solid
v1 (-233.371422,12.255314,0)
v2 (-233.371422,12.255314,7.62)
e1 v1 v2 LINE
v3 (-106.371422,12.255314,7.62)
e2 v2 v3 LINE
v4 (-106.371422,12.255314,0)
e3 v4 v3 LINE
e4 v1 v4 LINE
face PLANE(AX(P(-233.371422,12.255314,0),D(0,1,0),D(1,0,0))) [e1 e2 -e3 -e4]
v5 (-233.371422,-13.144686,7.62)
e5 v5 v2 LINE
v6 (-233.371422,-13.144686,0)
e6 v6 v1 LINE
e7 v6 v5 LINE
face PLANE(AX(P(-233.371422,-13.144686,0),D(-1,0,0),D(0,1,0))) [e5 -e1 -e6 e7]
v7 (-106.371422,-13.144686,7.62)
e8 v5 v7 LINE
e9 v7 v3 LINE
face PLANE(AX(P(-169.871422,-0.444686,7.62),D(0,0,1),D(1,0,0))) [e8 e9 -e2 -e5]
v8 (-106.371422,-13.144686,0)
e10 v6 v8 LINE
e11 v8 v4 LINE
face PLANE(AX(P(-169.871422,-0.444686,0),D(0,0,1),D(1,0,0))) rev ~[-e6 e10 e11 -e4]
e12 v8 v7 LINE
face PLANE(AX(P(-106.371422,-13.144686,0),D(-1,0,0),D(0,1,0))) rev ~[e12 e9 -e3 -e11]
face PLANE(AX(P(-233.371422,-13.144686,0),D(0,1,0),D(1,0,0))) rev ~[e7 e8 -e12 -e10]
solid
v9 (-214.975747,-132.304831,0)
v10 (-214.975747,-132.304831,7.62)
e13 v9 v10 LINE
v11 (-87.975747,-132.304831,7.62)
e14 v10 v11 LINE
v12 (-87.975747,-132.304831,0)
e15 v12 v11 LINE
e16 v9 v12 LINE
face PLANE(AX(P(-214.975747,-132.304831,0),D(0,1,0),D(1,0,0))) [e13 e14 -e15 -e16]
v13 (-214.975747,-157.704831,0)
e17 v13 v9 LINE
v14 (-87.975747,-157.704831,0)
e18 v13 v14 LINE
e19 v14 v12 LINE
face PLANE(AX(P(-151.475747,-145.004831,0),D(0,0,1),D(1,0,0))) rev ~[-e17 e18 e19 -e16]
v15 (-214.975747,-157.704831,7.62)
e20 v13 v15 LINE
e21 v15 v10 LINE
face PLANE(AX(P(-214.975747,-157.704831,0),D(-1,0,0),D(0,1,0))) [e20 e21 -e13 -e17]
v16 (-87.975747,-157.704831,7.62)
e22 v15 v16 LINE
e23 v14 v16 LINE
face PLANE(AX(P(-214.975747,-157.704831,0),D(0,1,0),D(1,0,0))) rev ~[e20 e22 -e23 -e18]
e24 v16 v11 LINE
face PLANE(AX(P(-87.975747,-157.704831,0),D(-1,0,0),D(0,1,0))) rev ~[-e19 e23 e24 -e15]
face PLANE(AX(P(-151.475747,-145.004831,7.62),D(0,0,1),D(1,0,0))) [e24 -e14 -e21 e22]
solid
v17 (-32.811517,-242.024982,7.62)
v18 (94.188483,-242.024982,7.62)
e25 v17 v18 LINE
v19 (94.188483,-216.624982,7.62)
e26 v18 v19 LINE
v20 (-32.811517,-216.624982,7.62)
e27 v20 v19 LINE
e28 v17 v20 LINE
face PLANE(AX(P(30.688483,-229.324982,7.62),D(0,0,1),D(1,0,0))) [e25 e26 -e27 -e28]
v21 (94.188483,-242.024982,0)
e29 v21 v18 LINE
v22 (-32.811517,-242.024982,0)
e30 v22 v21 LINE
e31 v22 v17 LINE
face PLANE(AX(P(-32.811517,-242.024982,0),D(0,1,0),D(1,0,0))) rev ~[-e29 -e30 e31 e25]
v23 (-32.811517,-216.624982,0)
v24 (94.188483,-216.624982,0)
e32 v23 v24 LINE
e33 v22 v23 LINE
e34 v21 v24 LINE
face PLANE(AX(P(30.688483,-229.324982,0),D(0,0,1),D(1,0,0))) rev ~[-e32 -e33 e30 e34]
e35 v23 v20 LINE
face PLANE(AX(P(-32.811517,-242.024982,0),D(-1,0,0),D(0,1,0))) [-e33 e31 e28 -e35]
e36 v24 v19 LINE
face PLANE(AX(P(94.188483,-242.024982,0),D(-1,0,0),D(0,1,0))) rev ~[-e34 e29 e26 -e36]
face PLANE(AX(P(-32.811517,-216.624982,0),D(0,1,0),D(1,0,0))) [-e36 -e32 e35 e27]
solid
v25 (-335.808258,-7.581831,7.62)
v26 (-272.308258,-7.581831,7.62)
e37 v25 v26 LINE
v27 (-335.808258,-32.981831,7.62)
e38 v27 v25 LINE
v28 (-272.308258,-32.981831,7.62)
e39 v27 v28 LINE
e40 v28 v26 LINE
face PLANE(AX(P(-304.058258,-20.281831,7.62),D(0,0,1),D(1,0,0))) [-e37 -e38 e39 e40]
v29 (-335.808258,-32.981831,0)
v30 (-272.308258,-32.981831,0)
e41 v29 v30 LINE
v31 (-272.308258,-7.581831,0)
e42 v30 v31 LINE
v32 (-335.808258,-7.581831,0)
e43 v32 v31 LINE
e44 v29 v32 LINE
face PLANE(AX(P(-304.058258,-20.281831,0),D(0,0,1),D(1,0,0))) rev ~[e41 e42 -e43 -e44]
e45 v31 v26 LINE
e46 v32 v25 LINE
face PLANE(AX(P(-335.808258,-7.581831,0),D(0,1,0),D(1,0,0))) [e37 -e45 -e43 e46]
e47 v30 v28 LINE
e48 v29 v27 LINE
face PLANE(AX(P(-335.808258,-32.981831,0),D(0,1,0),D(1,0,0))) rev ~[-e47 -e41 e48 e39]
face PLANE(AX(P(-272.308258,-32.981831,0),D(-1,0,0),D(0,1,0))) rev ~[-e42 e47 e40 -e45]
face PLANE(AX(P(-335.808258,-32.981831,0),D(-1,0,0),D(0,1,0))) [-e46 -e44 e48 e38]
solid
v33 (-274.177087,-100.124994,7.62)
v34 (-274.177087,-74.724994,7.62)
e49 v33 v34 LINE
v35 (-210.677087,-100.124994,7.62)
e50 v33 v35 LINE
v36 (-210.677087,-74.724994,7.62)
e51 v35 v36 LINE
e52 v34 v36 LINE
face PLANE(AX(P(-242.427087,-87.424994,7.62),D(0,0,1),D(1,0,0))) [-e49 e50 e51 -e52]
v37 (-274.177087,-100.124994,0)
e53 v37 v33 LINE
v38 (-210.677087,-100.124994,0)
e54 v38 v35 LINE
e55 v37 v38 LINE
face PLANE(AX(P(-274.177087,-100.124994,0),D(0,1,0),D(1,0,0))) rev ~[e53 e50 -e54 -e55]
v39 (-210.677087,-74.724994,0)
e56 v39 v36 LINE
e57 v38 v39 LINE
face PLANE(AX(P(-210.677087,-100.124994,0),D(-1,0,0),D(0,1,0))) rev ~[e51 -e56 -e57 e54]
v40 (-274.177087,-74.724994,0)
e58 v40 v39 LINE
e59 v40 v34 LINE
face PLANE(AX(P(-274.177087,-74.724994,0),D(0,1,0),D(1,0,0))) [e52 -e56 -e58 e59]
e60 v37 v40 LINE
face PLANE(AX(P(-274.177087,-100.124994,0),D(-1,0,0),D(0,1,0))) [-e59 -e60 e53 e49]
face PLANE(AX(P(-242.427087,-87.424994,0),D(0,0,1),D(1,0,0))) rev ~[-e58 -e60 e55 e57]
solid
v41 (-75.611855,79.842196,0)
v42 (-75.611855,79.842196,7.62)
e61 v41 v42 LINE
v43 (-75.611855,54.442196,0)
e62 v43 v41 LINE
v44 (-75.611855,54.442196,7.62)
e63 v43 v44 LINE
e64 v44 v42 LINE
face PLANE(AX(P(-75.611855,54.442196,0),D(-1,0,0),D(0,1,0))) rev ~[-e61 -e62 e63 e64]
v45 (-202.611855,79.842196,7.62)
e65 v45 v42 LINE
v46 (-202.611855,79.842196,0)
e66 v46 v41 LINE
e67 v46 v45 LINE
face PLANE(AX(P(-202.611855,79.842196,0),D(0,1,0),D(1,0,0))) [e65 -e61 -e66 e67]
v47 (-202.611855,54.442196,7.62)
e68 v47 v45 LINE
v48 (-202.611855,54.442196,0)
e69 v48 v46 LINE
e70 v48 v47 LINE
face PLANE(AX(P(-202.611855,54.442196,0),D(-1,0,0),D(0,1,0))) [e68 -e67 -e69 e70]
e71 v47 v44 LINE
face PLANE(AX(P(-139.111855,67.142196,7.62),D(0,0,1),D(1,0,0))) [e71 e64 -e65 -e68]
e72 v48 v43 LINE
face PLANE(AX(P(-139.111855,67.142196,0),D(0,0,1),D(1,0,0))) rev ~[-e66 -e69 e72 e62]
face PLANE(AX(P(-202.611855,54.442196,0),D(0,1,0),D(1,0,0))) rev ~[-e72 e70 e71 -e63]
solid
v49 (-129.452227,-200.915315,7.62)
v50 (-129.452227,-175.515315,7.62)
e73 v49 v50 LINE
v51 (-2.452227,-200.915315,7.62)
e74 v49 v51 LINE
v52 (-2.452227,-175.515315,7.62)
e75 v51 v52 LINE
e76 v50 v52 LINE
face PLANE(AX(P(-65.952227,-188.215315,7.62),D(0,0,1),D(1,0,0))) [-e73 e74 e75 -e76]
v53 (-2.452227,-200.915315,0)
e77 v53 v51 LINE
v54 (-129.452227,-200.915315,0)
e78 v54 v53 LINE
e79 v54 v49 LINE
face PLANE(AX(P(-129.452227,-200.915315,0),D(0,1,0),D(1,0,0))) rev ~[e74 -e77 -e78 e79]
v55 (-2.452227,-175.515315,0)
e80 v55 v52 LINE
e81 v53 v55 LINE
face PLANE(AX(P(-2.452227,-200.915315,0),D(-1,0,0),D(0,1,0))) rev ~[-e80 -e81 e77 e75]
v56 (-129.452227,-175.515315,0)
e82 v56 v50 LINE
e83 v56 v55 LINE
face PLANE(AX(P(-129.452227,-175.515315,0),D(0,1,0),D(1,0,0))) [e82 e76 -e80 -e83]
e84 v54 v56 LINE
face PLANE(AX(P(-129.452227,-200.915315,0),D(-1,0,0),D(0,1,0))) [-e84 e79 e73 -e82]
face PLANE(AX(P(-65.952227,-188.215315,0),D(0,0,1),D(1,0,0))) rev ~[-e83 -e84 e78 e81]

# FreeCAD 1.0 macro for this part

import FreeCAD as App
import Part
import Sketcher

V = App.Vector
Q = App.Units.Quantity

doc = App.newDocument("Part")
body = doc.addObject("PartDesign::Body", "Body")
body.AllowCompound = True

# Sketch on XY plane
sketch1 = doc.addObject("Sketcher::SketchObject", "Sketch")
body.addObject(sketch1)
sketch1.AttachmentSupport = (doc.XY_Plane, [""])
sketch1.MapMode = "FlatFace"
sketch1.addGeometry([
    Part.LineSegment(V(-215, -132, 0), V(-215, -158, 0)),  # 0
    Part.LineSegment(V(-215, -158, 0), V(-88, -158, 0)),  # 1
    Part.LineSegment(V(-88, -158, 0), V(-88, -132, 0)),  # 2
    Part.LineSegment(V(-88, -132, 0), V(-215, -132, 0)),  # 3
    Part.LineSegment(V(-129, -176, 0), V(-129, -201, 0)),  # 4
    Part.LineSegment(V(-129, -201, 0), V(-2, -201, 0)),  # 5
    Part.LineSegment(V(-2, -201, 0), V(-2, -176, 0)),  # 6
    Part.LineSegment(V(-2, -176, 0), V(-129, -176, 0)),  # 7
    Part.LineSegment(V(-33, -217, 0), V(-33, -242, 0)),  # 8
    Part.LineSegment(V(-33, -242, 0), V(94, -242, 0)),  # 9
    Part.LineSegment(V(94, -242, 0), V(94, -217, 0)),  # 10
    Part.LineSegment(V(94, -217, 0), V(-33, -217, 0)),  # 11
], False)
sketch1.addConstraint([
    Sketcher.Constraint("Coincident", 0, 2, 1, 1),
    Sketcher.Constraint("Coincident", 1, 2, 2, 1),
    Sketcher.Constraint("Coincident", 2, 2, 3, 1),
    Sketcher.Constraint("Coincident", 3, 2, 0, 1),
    Sketcher.Constraint("Coincident", 4, 2, 5, 1),
    Sketcher.Constraint("Coincident", 5, 2, 6, 1),
    Sketcher.Constraint("Coincident", 6, 2, 7, 1),
    Sketcher.Constraint("Coincident", 7, 2, 4, 1),
    Sketcher.Constraint("Coincident", 8, 2, 9, 1),
    Sketcher.Constraint("Coincident", 9, 2, 10, 1),
    Sketcher.Constraint("Coincident", 10, 2, 11, 1),
    Sketcher.Constraint("Coincident", 11, 2, 8, 1),
    Sketcher.Constraint("Vertical", 0),
    Sketcher.Constraint("Horizontal", 1),
    Sketcher.Constraint("Vertical", 2),
    Sketcher.Constraint("Horizontal", 3),
    Sketcher.Constraint("Vertical", 4),
    Sketcher.Constraint("Horizontal", 5),
    Sketcher.Constraint("Vertical", 6),
    Sketcher.Constraint("Horizontal", 7),
    Sketcher.Constraint("Vertical", 8),
    Sketcher.Constraint("Horizontal", 9),
    Sketcher.Constraint("Vertical", 10),
    Sketcher.Constraint("Horizontal", 11),
    Sketcher.Constraint("Equal", 3, 5),
    Sketcher.Constraint("Equal", 7, 9),
    Sketcher.Constraint("Equal", 2, 4),
    Sketcher.Constraint("Equal", 6, 8),
    Sketcher.Constraint("DistanceX", 1, 1, 1, 2, Q("5 in")),
    Sketcher.Constraint("DistanceY", 0, 2, 0, 1, Q("1 in")),
    Sketcher.Constraint("DistanceY", 4, 2, 1, 2, Q("1.7012002 in")),
    Sketcher.Constraint("DistanceY", 0, 2, -1, 1, Q("157.704831 mm")),
    Sketcher.Constraint("DistanceY", 8, 2, -1, 1, Q("242.024982 mm")),
    Sketcher.Constraint("DistanceX", 4, 2, 1, 2, Q("41.47648 mm")),
    Sketcher.Constraint("DistanceX", 8, 2, 5, 2, Q("30.35929 mm")),
    Sketcher.Constraint("DistanceX", 0, 2, -1, 1, Q("214.975747 mm")),
])
pad1 = doc.addObject("PartDesign::Pad", "Pad")
body.addObject(pad1)
pad1.Profile = sketch1
pad1.Length = Q("0.3 in")
body2 = doc.addObject("PartDesign::Body", "Body001")

# Sketch on XY plane
sketch2 = doc.addObject("Sketcher::SketchObject", "Sketch001")
body2.addObject(sketch2)
sketch2.AttachmentSupport = (doc.getObject("XY_Plane001"), [""])
sketch2.MapMode = "FlatFace"
sketch2.addGeometry([
    Part.LineSegment(V(-274, -75, 0), V(-274, -100, 0)),
    Part.LineSegment(V(-274, -100, 0), V(-211, -100, 0)),
    Part.LineSegment(V(-211, -100, 0), V(-211, -75, 0)),
    Part.LineSegment(V(-211, -75, 0), V(-274, -75, 0)),
], False)
sketch2.addConstraint([
    Sketcher.Constraint("Coincident", 0, 2, 1, 1),
    Sketcher.Constraint("Coincident", 1, 2, 2, 1),
    Sketcher.Constraint("Coincident", 2, 2, 3, 1),
    Sketcher.Constraint("Coincident", 3, 2, 0, 1),
    Sketcher.Constraint("Vertical", 0),
    Sketcher.Constraint("Horizontal", 1),
    Sketcher.Constraint("Vertical", 2),
    Sketcher.Constraint("Horizontal", 3),
    Sketcher.Constraint("DistanceY", 0, 2, 0, 1, Q("1 in")),
    Sketcher.Constraint("DistanceX", 1, 1, 1, 2, Q("2.5 in")),
    Sketcher.Constraint("DistanceX", 0, 2, -1, 1, Q("274.177087 mm")),
    Sketcher.Constraint("DistanceY", 0, 2, -1, 1, Q("100.124994 mm")),
])
pad2 = doc.addObject("PartDesign::Pad", "Pad001")
body2.addObject(pad2)
pad2.Profile = sketch2
pad2.Length = Q("0.3 in")
body3 = doc.addObject("PartDesign::Body", "Body002")
body3.AllowCompound = True

# Sketch on XY plane
sketch3 = doc.addObject("Sketcher::SketchObject", "Sketch002")
body3.addObject(sketch3)
sketch3.AttachmentSupport = (doc.getObject("XY_Plane002"), [""])
sketch3.MapMode = "FlatFace"
sketch3.addGeometry([
    Part.LineSegment(V(-203, 80, 0), V(-203, 54, 0)),  # 0
    Part.LineSegment(V(-203, 54, 0), V(-76, 54, 0)),  # 1
    Part.LineSegment(V(-76, 54, 0), V(-76, 80, 0)),  # 2
    Part.LineSegment(V(-76, 80, 0), V(-203, 80, 0)),  # 3
    Part.LineSegment(V(-233, 12, 0), V(-233, -13, 0)),  # 4
    Part.LineSegment(V(-233, -13, 0), V(-106, -13, 0)),  # 5
    Part.LineSegment(V(-106, -13, 0), V(-106, 12, 0)),  # 6
    Part.LineSegment(V(-106, 12, 0), V(-233, 12, 0)),  # 7
], False)
sketch3.addConstraint([
    Sketcher.Constraint("Coincident", 0, 2, 1, 1),
    Sketcher.Constraint("Coincident", 1, 2, 2, 1),
    Sketcher.Constraint("Coincident", 2, 2, 3, 1),
    Sketcher.Constraint("Coincident", 3, 2, 0, 1),
    Sketcher.Constraint("Coincident", 4, 2, 5, 1),
    Sketcher.Constraint("Coincident", 5, 2, 6, 1),
    Sketcher.Constraint("Coincident", 6, 2, 7, 1),
    Sketcher.Constraint("Coincident", 7, 2, 4, 1),
    Sketcher.Constraint("Vertical", 0),
    Sketcher.Constraint("Horizontal", 1),
    Sketcher.Constraint("Vertical", 2),
    Sketcher.Constraint("Horizontal", 3),
    Sketcher.Constraint("Vertical", 4),
    Sketcher.Constraint("Horizontal", 5),
    Sketcher.Constraint("Vertical", 6),
    Sketcher.Constraint("Horizontal", 7),
    Sketcher.Constraint("Equal", 3, 5),
    Sketcher.Constraint("Equal", 2, 4),
    Sketcher.Constraint("DistanceX", 1, 1, 1, 2, Q("5 in")),
    Sketcher.Constraint("DistanceY", 0, 2, 0, 1, Q("1 in")),
    Sketcher.Constraint("DistanceX", 4, 2, -1, 1, Q("233.371422 mm")),
    Sketcher.Constraint("DistanceX", 0, 2, -1, 1, Q("202.611855 mm")),
    Sketcher.Constraint("DistanceY", -1, 1, 0, 2, Q("54.442196 mm")),
    Sketcher.Constraint("DistanceY", 4, 2, -1, 1, Q("13.144686 mm")),
])
pad3 = doc.addObject("PartDesign::Pad", "Pad002")
body3.addObject(pad3)
pad3.Profile = sketch3
pad3.Length = Q("0.3 in")
body4 = doc.addObject("PartDesign::Body", "Body003")

# Sketch on XY plane
sketch4 = doc.addObject("Sketcher::SketchObject", "Sketch003")
body4.addObject(sketch4)
sketch4.AttachmentSupport = (doc.getObject("XY_Plane003"), [""])
sketch4.MapMode = "FlatFace"
sketch4.addGeometry([
    Part.LineSegment(V(-336, -8, 0), V(-336, -33, 0)),
    Part.LineSegment(V(-336, -33, 0), V(-272, -33, 0)),
    Part.LineSegment(V(-272, -33, 0), V(-272, -8, 0)),
    Part.LineSegment(V(-272, -8, 0), V(-336, -8, 0)),
], False)
sketch4.addConstraint([
    Sketcher.Constraint("Coincident", 0, 2, 1, 1),
    Sketcher.Constraint("Coincident", 1, 2, 2, 1),
    Sketcher.Constraint("Coincident", 2, 2, 3, 1),
    Sketcher.Constraint("Coincident", 3, 2, 0, 1),
    Sketcher.Constraint("Vertical", 0),
    Sketcher.Constraint("Horizontal", 1),
    Sketcher.Constraint("Vertical", 2),
    Sketcher.Constraint("Horizontal", 3),
    Sketcher.Constraint("DistanceY", 0, 2, 0, 1, Q("1 in")),
    Sketcher.Constraint("DistanceX", 1, 1, 1, 2, Q("2.5 in")),
    Sketcher.Constraint("DistanceX", 0, 2, -1, 1, Q("335.808258 mm")),
    Sketcher.Constraint("DistanceY", 0, 2, -1, 1, Q("32.981831 mm")),
])
pad4 = doc.addObject("PartDesign::Pad", "Pad003")
body4.addObject(pad4)
pad4.Profile = sketch4
pad4.Length = Q("0.3 in")

doc.recompute()
